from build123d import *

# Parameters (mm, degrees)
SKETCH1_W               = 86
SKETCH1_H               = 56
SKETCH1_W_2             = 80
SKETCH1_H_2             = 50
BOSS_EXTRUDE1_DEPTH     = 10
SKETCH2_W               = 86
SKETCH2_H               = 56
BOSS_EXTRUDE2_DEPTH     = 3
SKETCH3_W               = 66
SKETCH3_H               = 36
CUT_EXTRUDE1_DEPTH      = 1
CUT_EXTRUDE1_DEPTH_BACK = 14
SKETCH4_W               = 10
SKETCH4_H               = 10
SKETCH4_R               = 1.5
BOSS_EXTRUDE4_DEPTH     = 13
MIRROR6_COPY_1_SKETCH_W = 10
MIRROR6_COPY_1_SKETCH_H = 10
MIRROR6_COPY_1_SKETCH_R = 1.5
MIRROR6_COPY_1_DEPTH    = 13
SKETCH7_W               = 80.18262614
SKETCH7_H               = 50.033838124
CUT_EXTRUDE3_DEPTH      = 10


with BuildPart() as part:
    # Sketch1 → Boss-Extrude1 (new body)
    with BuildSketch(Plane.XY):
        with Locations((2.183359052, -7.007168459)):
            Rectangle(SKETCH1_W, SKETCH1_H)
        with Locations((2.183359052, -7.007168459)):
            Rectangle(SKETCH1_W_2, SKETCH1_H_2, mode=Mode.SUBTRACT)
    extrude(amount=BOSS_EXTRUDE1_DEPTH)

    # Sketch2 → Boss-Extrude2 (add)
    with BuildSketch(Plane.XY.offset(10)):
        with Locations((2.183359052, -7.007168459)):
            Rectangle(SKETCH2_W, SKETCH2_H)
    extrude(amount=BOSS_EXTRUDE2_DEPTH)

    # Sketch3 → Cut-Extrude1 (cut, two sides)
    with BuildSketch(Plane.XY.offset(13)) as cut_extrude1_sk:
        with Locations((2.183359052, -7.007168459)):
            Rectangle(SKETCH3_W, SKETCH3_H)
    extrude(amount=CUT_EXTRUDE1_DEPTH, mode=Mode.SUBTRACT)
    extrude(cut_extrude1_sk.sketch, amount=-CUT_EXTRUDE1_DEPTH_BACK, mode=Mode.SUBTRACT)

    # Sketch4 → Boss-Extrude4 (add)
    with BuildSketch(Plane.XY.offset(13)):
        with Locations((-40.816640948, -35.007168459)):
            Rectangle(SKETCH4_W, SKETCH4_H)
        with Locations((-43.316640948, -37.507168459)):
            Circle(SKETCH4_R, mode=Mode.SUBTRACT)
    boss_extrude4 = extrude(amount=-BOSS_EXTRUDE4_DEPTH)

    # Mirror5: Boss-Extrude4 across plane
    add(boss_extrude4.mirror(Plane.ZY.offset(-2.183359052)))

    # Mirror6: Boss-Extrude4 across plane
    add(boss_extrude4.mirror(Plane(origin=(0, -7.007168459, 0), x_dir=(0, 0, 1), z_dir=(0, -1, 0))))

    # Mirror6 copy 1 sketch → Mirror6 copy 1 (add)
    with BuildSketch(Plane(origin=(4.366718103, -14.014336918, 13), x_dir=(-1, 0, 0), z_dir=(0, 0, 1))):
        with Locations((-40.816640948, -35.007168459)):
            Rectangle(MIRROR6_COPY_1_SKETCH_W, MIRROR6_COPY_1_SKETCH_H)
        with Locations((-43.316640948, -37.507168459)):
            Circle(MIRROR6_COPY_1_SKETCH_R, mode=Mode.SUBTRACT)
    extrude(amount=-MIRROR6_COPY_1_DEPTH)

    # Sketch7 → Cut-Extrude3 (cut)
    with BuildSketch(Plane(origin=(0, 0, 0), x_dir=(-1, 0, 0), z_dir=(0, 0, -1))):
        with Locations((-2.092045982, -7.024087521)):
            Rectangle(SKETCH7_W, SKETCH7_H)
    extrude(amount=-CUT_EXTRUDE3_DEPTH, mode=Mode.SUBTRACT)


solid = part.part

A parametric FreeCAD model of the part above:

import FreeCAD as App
import Part
import Sketcher

V = App.Vector

doc = App.newDocument("Part")
body = doc.addObject("PartDesign::Body", "Body")

# Sketch on XY plane
sketch1 = doc.addObject("Sketcher::SketchObject", "Sketch")
body.addObject(sketch1)
sketch1.AttachmentSupport = (doc.XY_Plane, [""])
sketch1.MapMode = "FlatFace"
sketch1.addGeometry([
    Part.LineSegment(V(-41, 21, 0), V(-41, -35, 0)),  # 0
    Part.LineSegment(V(-41, -35, 0), V(45, -35, 0)),  # 1
    Part.LineSegment(V(45, -35, 0), V(45, 21, 0)),  # 2
    Part.LineSegment(V(45, 21, 0), V(-41, 21, 0)),  # 3
    Part.LineSegment(V(42, -32, 0), V(-38, -32, 0)),  # 4
    Part.LineSegment(V(-38, -32, 0), V(-38, 18, 0)),  # 5
    Part.LineSegment(V(-38, 18, 0), V(42, 18, 0)),  # 6
    Part.LineSegment(V(42, 18, 0), V(42, -32, 0)),  # 7
], False)
sketch1.addConstraint([
    Sketcher.Constraint("Coincident", 0, 2, 1, 1),
    Sketcher.Constraint("Coincident", 1, 2, 2, 1),
    Sketcher.Constraint("Coincident", 2, 2, 3, 1),
    Sketcher.Constraint("Coincident", 3, 2, 0, 1),
    Sketcher.Constraint("Coincident", 4, 2, 5, 1),
    Sketcher.Constraint("Coincident", 5, 2, 6, 1),
    Sketcher.Constraint("Coincident", 6, 2, 7, 1),
    Sketcher.Constraint("Coincident", 7, 2, 4, 1),
    Sketcher.Constraint("Vertical", 0),
    Sketcher.Constraint("Horizontal", 1),
    Sketcher.Constraint("Vertical", 2),
    Sketcher.Constraint("Horizontal", 3),
    Sketcher.Constraint("Horizontal", 4),
    Sketcher.Constraint("Vertical", 5),
    Sketcher.Constraint("Horizontal", 6),
    Sketcher.Constraint("Vertical", 7),
    Sketcher.Constraint("DistanceX", 1, 1, 1, 2, 86.0),
    Sketcher.Constraint("DistanceX", 4, 2, 4, 1, 80.0),
    Sketcher.Constraint("DistanceY", 0, 2, 0, 1, 56.0),
    Sketcher.Constraint("DistanceY", 5, 1, 5, 2, 50.0),
    Sketcher.Constraint("DistanceX", 0, 2, 4, 2, 3.0),
    Sketcher.Constraint("DistanceY", 0, 2, 4, 2, 3.0),
    Sketcher.Constraint("DistanceX", 0, 2, -1, 1, 40.816641),
    Sketcher.Constraint("DistanceY", 0, 2, -1, 1, 35.007168),
])
pad1 = doc.addObject("PartDesign::Pad", "Pad")
body.addObject(pad1)
pad1.Profile = sketch1
pad1.Length = 10

# Sketch on XY plane
sketch2 = doc.addObject("Sketcher::SketchObject", "Sketch001")
body.addObject(sketch2)
sketch2.AttachmentSupport = (doc.XY_Plane, [""])
sketch2.MapMode = "FlatFace"
sketch2.AttachmentOffset = App.Placement(V(0, 0, 10), App.Rotation())
sketch2.addGeometry([
    Part.LineSegment(V(-41, 21, 0), V(-41, -35, 0)),
    Part.LineSegment(V(-41, -35, 0), V(45, -35, 0)),
    Part.LineSegment(V(45, -35, 0), V(45, 21, 0)),
    Part.LineSegment(V(45, 21, 0), V(-41, 21, 0)),
], False)
sketch2.addConstraint([
    Sketcher.Constraint("Coincident", 0, 2, 1, 1),
    Sketcher.Constraint("Coincident", 1, 2, 2, 1),
    Sketcher.Constraint("Coincident", 2, 2, 3, 1),
    Sketcher.Constraint("Coincident", 3, 2, 0, 1),
    Sketcher.Constraint("Vertical", 0),
    Sketcher.Constraint("Horizontal", 1),
    Sketcher.Constraint("Vertical", 2),
    Sketcher.Constraint("Horizontal", 3),
    Sketcher.Constraint("DistanceX", 1, 1, 1, 2, 86.0),
    Sketcher.Constraint("DistanceY", 0, 2, 0, 1, 56.0),
    Sketcher.Constraint("DistanceX", 0, 2, -1, 1, 40.816641),
    Sketcher.Constraint("DistanceY", 0, 2, -1, 1, 35.007168),
])
pad2 = doc.addObject("PartDesign::Pad", "Pad001")
body.addObject(pad2)
pad2.Profile = sketch2
pad2.Length = 3

# Sketch on XY plane
sketch3 = doc.addObject("Sketcher::SketchObject", "Sketch002")
body.addObject(sketch3)
sketch3.AttachmentSupport = (doc.XY_Plane, [""])
sketch3.MapMode = "FlatFace"
sketch3.AttachmentOffset = App.Placement(V(0, 0, 13), App.Rotation())
sketch3.addGeometry([
    Part.LineSegment(V(-31, 11, 0), V(-31, -25, 0)),
    Part.LineSegment(V(-31, -25, 0), V(35, -25, 0)),
    Part.LineSegment(V(35, -25, 0), V(35, 11, 0)),
    Part.LineSegment(V(35, 11, 0), V(-31, 11, 0)),
], False)
sketch3.addConstraint([
    Sketcher.Constraint("Coincident", 0, 2, 1, 1),
    Sketcher.Constraint("Coincident", 1, 2, 2, 1),
    Sketcher.Constraint("Coincident", 2, 2, 3, 1),
    Sketcher.Constraint("Coincident", 3, 2, 0, 1),
    Sketcher.Constraint("Vertical", 0),
    Sketcher.Constraint("Horizontal", 1),
    Sketcher.Constraint("Vertical", 2),
    Sketcher.Constraint("Horizontal", 3),
    Sketcher.Constraint("DistanceX", 1, 1, 1, 2, 66.0),
    Sketcher.Constraint("DistanceY", 0, 2, 0, 1, 36.0),
    Sketcher.Constraint("DistanceX", 0, 2, -1, 1, 30.816641),
    Sketcher.Constraint("DistanceY", 0, 2, -1, 1, 25.007168),
])
pocket1 = doc.addObject("PartDesign::Pocket", "Pocket")
body.addObject(pocket1)
pocket1.Profile = sketch3
pocket1.Type = "ThroughAll"
pocket1.Midplane = True

# Sketch on XY plane
sketch4 = doc.addObject("Sketcher::SketchObject", "Sketch003")
body.addObject(sketch4)
sketch4.AttachmentSupport = (doc.XY_Plane, [""])
sketch4.MapMode = "FlatFace"
sketch4.AttachmentOffset = App.Placement(V(0, 0, 13), App.Rotation())
sketch4.addGeometry([
    Part.LineSegment(V(-45.8, -30, 0), V(-45.8, -40, 0)),  # 0
    Part.LineSegment(V(-45.8, -40, 0), V(-35.8, -40, 0)),  # 1
    Part.LineSegment(V(-35.8, -40, 0), V(-35.8, -30, 0)),  # 2
    Part.LineSegment(V(-35.8, -30, 0), V(-45.8, -30, 0)),  # 3
    Part.Circle(V(-43.3, -37.5, 0), V(0, 0, 1), 1.5),  # 4
], False)
sketch4.addConstraint([
    Sketcher.Constraint("Coincident", 0, 2, 1, 1),
    Sketcher.Constraint("Coincident", 1, 2, 2, 1),
    Sketcher.Constraint("Coincident", 2, 2, 3, 1),
    Sketcher.Constraint("Coincident", 3, 2, 0, 1),
    Sketcher.Constraint("Vertical", 0),
    Sketcher.Constraint("Horizontal", 1),
    Sketcher.Constraint("Vertical", 2),
    Sketcher.Constraint("Horizontal", 3),
    Sketcher.Constraint("Equal", 3, 0),
    Sketcher.Constraint("Diameter", 4, 3.0),
    Sketcher.Constraint("DistanceX", 1, 1, 1, 2, 10.0),
    Sketcher.Constraint("DistanceX", 0, 2, 4, 3, 2.5),
    Sketcher.Constraint("DistanceY", 0, 2, 4, 3, 2.5),
    Sketcher.Constraint("DistanceX", 4, 3, -1, 1, 43.316641),
    Sketcher.Constraint("DistanceY", 4, 3, -1, 1, 37.507168),
])
pad3 = doc.addObject("PartDesign::Pad", "Pad002")
body.addObject(pad3)
pad3.Profile = sketch4
pad3.Length = 13
pad3.Reversed = True
doc.recompute()

datumplane = doc.addObject("PartDesign::Plane", "DatumPlane")
body.addObject(datumplane)
datumplane.AttachmentSupport = (doc.YZ_Plane, [""])
datumplane.MapMode = "FlatFace"
datumplane.AttachmentOffset = App.Placement(V(0, 0, 2.183359), App.Rotation())
mirrored = doc.addObject("PartDesign::Mirrored", "Mirrored")
body.addObject(mirrored)
mirrored.Originals = [pad3]
mirrored.MirrorPlane = (datumplane, [""])
body.Tip = mirrored
doc.recompute()

datumplane2 = doc.addObject("PartDesign::Plane", "DatumPlane001")
body.addObject(datumplane2)
datumplane2.AttachmentSupport = (doc.XZ_Plane, [""])
datumplane2.MapMode = "FlatFace"
datumplane2.AttachmentOffset = App.Placement(V(0, 0, 7.007168), App.Rotation())
mirrored2 = doc.addObject("PartDesign::Mirrored", "Mirrored001")
body.addObject(mirrored2)
mirrored2.Originals = [pad3]
mirrored2.MirrorPlane = (datumplane2, [""])
body.Tip = mirrored2

# Sketch on XY plane
sketch5 = doc.addObject("Sketcher::SketchObject", "Sketch004")
body.addObject(sketch5)
sketch5.AttachmentSupport = (doc.XY_Plane, [""])
sketch5.MapMode = "FlatFace"
sketch5.AttachmentOffset = App.Placement(V(0, 0, 13), App.Rotation())
sketch5.addGeometry([
    Part.LineSegment(V(50.2, 16, 0), V(50.2, 26, 0)),  # 0
    Part.LineSegment(V(50.2, 26, 0), V(40.2, 26, 0)),  # 1
    Part.LineSegment(V(40.2, 26, 0), V(40.2, 16, 0)),  # 2
    Part.LineSegment(V(40.2, 16, 0), V(50.2, 16, 0)),  # 3
    Part.Circle(V(47.7, 23.5, 0), V(0, 0, 1), 1.5),  # 4
], False)
sketch5.addConstraint([
    Sketcher.Constraint("Coincident", 0, 2, 1, 1),
    Sketcher.Constraint("Coincident", 1, 2, 2, 1),
    Sketcher.Constraint("Coincident", 2, 2, 3, 1),
    Sketcher.Constraint("Coincident", 3, 2, 0, 1),
    Sketcher.Constraint("Vertical", 0),
    Sketcher.Constraint("Horizontal", 1),
    Sketcher.Constraint("Vertical", 2),
    Sketcher.Constraint("Horizontal", 3),
    Sketcher.Constraint("Equal", 3, 0),
    Sketcher.Constraint("Diameter", 4, 3.0),
    Sketcher.Constraint("DistanceX", 1, 2, 1, 1, 10.0),
    Sketcher.Constraint("DistanceX", 4, 3, 0, 2, 2.5),
    Sketcher.Constraint("DistanceY", 4, 3, 0, 2, 2.5),
    Sketcher.Constraint("DistanceX", -1, 1, 4, 3, 47.683359),
    Sketcher.Constraint("DistanceY", -1, 1, 4, 3, 23.492832),
])
pad4 = doc.addObject("PartDesign::Pad", "Pad003")
body.addObject(pad4)
pad4.Profile = sketch5
pad4.Length = 13
pad4.Reversed = True

# Sketch on XY plane
sketch6 = doc.addObject("Sketcher::SketchObject", "Sketch005")
body.addObject(sketch6)
sketch6.AttachmentSupport = (doc.XY_Plane, [""])
sketch6.MapMode = "FlatFace"
sketch6.addGeometry([
    Part.LineSegment(V(42, 18, 0), V(42, -32, 0)),
    Part.LineSegment(V(42, -32, 0), V(-38, -32, 0)),
    Part.LineSegment(V(-38, -32, 0), V(-38, 18, 0)),
    Part.LineSegment(V(-38, 18, 0), V(42, 18, 0)),
], False)
sketch6.addConstraint([
    Sketcher.Constraint("Coincident", 0, 2, 1, 1),
    Sketcher.Constraint("Coincident", 1, 2, 2, 1),
    Sketcher.Constraint("Coincident", 2, 2, 3, 1),
    Sketcher.Constraint("Coincident", 3, 2, 0, 1),
    Sketcher.Constraint("Vertical", 0),
    Sketcher.Constraint("Horizontal", 1),
    Sketcher.Constraint("Vertical", 2),
    Sketcher.Constraint("Horizontal", 3),
    Sketcher.Constraint("DistanceY", 0, 2, 0, 1, 50.033838),
    Sketcher.Constraint("DistanceX", 1, 2, 1, 1, 80.182626),
    Sketcher.Constraint("DistanceX", -1, 1, 0, 2, 42.183359),
    Sketcher.Constraint("DistanceY", -1, 1, 2, 2, 17.992832),
])
pocket2 = doc.addObject("PartDesign::Pocket", "Pocket001")
body.addObject(pocket2)
pocket2.Profile = sketch6
pocket2.Length = 10
pocket2.Reversed = True

doc.recompute()
